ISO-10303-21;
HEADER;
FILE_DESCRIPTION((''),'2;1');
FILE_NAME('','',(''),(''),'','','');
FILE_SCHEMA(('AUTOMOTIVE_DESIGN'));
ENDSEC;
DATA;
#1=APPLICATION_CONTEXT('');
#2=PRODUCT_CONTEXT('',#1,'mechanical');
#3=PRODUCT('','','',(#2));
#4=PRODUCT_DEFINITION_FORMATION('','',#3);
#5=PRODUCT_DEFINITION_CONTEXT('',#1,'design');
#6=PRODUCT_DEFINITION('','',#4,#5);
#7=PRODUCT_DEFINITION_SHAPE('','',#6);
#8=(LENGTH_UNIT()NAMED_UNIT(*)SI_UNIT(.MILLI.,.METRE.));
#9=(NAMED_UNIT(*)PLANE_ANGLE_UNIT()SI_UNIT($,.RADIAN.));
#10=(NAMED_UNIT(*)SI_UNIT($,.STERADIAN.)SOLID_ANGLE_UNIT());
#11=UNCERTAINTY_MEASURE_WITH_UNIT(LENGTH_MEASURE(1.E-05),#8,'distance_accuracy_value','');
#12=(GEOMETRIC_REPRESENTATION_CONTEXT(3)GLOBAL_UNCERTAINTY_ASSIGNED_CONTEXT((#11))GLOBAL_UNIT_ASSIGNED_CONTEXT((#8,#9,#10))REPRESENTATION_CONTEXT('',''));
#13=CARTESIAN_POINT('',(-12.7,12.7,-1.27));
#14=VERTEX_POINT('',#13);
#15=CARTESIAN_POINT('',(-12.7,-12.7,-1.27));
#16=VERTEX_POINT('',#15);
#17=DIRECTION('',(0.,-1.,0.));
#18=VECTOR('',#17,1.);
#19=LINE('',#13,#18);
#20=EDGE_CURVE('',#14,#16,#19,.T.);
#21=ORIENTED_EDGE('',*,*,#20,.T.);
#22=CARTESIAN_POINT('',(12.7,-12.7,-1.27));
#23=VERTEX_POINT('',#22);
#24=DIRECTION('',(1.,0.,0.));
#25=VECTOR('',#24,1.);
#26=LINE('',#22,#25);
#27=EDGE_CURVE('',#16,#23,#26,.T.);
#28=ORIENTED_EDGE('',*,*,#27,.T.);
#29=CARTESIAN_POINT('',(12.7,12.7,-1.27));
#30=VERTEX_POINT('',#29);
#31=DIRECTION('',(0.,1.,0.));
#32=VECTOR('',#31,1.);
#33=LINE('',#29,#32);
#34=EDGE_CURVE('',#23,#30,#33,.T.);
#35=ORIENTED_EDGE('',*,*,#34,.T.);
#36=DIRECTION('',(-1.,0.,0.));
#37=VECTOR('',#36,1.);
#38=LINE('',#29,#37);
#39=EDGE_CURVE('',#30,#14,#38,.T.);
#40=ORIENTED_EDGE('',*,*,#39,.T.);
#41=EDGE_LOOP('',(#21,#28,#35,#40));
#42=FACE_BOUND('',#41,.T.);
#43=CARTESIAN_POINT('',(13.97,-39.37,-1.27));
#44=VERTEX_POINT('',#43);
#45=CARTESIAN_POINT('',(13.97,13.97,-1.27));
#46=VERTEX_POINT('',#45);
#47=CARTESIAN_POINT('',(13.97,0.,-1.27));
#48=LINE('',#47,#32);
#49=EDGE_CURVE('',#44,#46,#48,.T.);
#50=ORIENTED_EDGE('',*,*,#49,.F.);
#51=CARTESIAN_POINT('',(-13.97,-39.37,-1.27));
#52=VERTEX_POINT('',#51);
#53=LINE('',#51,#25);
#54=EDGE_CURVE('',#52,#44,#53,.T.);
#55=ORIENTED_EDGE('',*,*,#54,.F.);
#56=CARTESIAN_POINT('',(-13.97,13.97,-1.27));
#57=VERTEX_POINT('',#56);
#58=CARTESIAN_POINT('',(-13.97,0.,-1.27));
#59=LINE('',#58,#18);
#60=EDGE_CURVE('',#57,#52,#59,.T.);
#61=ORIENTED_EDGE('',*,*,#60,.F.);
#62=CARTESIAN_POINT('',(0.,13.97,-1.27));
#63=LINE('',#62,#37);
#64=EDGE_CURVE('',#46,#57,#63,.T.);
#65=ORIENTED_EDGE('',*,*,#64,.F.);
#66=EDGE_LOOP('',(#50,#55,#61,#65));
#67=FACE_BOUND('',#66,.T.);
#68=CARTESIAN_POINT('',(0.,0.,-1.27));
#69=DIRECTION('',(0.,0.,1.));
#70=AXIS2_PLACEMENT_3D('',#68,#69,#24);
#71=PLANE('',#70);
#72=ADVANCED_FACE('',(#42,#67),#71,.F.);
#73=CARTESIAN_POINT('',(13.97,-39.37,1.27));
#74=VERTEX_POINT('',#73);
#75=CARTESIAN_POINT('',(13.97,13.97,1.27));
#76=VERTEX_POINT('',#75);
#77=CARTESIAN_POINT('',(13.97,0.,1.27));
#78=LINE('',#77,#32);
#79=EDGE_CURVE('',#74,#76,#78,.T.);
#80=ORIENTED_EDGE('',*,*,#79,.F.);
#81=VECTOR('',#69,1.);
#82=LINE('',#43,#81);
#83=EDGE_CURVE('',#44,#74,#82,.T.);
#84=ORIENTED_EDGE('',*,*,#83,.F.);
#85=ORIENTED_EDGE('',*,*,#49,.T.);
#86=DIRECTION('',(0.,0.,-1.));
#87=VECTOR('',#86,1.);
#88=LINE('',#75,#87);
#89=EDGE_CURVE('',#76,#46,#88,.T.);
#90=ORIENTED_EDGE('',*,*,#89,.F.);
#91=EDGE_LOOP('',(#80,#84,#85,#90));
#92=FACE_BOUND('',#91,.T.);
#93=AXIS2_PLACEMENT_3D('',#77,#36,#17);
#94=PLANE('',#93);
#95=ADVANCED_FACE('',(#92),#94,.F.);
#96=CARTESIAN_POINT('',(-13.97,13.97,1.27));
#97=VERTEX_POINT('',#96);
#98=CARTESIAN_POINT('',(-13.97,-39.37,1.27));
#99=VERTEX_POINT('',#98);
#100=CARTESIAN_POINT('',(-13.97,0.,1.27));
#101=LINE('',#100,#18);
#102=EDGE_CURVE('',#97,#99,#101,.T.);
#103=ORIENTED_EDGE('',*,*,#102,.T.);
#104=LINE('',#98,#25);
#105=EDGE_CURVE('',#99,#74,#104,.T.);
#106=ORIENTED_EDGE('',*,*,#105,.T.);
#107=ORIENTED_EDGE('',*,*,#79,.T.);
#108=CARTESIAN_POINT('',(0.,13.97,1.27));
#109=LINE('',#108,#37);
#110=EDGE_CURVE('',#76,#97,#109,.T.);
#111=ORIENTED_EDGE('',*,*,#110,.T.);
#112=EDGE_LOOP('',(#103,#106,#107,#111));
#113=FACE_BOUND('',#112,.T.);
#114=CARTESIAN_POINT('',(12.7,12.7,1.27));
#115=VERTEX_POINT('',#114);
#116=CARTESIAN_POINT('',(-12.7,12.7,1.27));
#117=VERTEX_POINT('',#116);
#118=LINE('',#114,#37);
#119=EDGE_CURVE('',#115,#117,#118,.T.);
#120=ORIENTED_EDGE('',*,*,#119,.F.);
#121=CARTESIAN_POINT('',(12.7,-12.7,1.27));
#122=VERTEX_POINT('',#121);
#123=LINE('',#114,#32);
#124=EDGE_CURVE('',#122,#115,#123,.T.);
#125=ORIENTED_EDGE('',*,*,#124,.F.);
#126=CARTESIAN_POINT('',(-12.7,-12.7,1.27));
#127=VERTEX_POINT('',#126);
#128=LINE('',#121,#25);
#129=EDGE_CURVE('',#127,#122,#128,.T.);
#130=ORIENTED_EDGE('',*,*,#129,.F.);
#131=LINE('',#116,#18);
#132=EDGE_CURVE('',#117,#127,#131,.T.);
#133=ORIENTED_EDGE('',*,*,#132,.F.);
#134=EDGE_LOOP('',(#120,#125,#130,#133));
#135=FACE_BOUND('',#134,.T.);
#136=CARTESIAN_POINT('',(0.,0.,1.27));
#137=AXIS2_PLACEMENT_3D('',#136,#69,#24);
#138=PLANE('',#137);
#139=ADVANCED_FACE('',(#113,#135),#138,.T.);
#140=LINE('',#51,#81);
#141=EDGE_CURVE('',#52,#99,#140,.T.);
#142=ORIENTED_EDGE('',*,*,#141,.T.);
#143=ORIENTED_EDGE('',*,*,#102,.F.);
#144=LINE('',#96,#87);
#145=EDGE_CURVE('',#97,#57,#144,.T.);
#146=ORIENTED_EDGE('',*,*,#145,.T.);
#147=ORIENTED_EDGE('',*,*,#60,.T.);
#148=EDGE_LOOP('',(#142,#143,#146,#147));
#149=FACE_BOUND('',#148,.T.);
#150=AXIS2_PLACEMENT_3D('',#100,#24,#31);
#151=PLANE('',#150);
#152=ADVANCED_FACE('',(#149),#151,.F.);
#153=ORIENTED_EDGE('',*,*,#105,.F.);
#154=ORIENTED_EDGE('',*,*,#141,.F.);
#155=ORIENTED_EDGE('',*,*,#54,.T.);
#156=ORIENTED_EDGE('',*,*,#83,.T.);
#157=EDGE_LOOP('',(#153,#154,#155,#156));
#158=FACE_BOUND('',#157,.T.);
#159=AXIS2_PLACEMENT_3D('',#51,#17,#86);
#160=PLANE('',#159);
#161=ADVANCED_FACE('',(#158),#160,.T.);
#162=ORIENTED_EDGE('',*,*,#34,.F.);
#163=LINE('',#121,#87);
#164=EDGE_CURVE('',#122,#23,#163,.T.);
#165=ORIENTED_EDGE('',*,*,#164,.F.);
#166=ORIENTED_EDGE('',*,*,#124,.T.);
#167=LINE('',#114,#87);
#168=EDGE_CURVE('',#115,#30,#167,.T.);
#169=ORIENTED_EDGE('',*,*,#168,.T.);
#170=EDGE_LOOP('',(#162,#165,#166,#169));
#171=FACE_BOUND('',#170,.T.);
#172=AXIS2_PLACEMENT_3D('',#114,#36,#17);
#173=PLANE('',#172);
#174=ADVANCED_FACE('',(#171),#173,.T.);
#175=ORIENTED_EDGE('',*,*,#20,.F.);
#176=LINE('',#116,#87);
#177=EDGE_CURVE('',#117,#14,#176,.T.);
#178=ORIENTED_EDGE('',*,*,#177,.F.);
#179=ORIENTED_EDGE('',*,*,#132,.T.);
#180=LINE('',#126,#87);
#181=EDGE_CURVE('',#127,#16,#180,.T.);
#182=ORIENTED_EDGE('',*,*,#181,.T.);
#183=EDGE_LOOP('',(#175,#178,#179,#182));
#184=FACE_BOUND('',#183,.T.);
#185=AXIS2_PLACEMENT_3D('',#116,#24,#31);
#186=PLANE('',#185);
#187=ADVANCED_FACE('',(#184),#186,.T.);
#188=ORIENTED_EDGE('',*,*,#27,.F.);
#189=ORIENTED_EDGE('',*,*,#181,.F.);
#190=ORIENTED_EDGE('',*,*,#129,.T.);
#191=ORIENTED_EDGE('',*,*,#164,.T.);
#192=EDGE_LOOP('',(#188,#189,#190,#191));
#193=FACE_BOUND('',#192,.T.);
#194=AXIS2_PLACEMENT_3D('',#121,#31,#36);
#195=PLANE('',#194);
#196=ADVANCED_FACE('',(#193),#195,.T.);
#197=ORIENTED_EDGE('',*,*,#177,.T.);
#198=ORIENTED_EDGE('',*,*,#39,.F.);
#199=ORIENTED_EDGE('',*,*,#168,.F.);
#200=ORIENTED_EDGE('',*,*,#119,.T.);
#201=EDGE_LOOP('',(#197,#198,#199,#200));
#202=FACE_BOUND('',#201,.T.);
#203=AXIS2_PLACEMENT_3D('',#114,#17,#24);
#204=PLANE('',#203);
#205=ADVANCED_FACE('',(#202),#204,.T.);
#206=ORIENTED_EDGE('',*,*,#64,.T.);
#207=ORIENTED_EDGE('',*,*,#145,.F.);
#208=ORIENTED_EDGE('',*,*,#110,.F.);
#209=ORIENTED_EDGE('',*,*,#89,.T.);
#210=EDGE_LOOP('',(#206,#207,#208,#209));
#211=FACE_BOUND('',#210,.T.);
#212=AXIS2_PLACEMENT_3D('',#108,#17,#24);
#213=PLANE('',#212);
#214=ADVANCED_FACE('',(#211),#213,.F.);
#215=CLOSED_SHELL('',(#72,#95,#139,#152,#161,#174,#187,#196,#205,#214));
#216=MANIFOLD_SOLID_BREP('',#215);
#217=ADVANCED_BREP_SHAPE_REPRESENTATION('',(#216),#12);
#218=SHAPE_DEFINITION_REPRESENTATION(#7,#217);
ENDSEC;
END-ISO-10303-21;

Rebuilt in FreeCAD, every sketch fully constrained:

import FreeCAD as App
import Part
import Sketcher

V = App.Vector
Q = App.Units.Quantity


def add_polygon(sketch, points):
    """Adds a closed chain of lines whose ends are joined by coincident constraints."""
    first, n = sketch.GeometryCount, len(points)
    for a, b in zip(points, points[1:] + points[:1]):
        sketch.addGeometry(Part.LineSegment(App.Vector(*a, 0), App.Vector(*b, 0)), False)
    for i in range(n):
        sketch.addConstraint(Sketcher.Constraint("Coincident", first + i, 2, first + (i + 1) % n, 1))

doc = App.newDocument("Part")
body = doc.addObject("PartDesign::Body", "Body")

# Sketch on XY plane
sketch1 = body.newObject("Sketcher::SketchObject", "Sketch")
sketch1.AttachmentSupport = (doc.getObject("XY_Plane"), [""])
sketch1.MapMode = "FlatFace"
add_polygon(sketch1, [(-13.97, 13.97), (-13.97, -13.97), (13.97, -13.97), (13.97, 13.97)])  # lines 0-3
add_polygon(sketch1, [(12.7, -12.7), (-12.7, -12.7), (-12.7, 12.7), (12.7, 12.7)])  # lines 4-7
sketch1.addConstraint([
    Sketcher.Constraint("Vertical", 0),
    Sketcher.Constraint("Horizontal", 1),
    Sketcher.Constraint("Vertical", 2),
    Sketcher.Constraint("Horizontal", 3),
    Sketcher.Constraint("Horizontal", 4),
    Sketcher.Constraint("Vertical", 5),
    Sketcher.Constraint("Horizontal", 6),
    Sketcher.Constraint("Vertical", 7),
    Sketcher.Constraint("Symmetric", 0, 2, 2, 2, -1, 1),
    Sketcher.Constraint("Symmetric", 4, 2, 6, 2, -1, 1),
    Sketcher.Constraint("Equal", 3, 0),
    Sketcher.Constraint("Equal", 6, 5),
    Sketcher.Constraint("DistanceX", 4, 2, 4, 1, Q("1 in")),
    Sketcher.Constraint("DistanceX", 1, 1, 1, 2, Q("1.1 in")),
])
pad1 = body.newObject("PartDesign::Pad", "Pad")
pad1.Profile = sketch1
pad1.Length = Q("0.1 in")
pad1.Midplane = True

# Sketch on XY plane
sketch2 = body.newObject("Sketcher::SketchObject", "Sketch001")
sketch2.AttachmentSupport = (doc.getObject("XY_Plane"), [""])
sketch2.MapMode = "FlatFace"
sketch2.AttachmentOffset = App.Placement(V(0, 0, 0.05 * 25.4), App.Rotation())
add_polygon(sketch2, [(-13.97, -13.97), (-13.97, -39.37), (13.97, -39.37), (13.97, -13.97)])  # lines 0-3
sketch2.addConstraint([
    Sketcher.Constraint("Vertical", 0),
    Sketcher.Constraint("Horizontal", 1),
    Sketcher.Constraint("Vertical", 2),
    Sketcher.Constraint("Horizontal", 3),
    Sketcher.Constraint("DistanceY", 0, 2, 0, 1, Q("1 in")),
    Sketcher.Constraint("DistanceX", 1, 1, 1, 2, Q("1.1 in")),
    Sketcher.Constraint("DistanceX", 0, 2, -1, 1, Q("0.55 in")),
    Sketcher.Constraint("DistanceY", 0, 2, -1, 1, Q("1.55 in")),
])
pad2 = body.newObject("PartDesign::Pad", "Pad001")
pad2.Profile = sketch2
pad2.Length = Q("0.1 in")
pad2.Reversed = True

doc.recompute()
